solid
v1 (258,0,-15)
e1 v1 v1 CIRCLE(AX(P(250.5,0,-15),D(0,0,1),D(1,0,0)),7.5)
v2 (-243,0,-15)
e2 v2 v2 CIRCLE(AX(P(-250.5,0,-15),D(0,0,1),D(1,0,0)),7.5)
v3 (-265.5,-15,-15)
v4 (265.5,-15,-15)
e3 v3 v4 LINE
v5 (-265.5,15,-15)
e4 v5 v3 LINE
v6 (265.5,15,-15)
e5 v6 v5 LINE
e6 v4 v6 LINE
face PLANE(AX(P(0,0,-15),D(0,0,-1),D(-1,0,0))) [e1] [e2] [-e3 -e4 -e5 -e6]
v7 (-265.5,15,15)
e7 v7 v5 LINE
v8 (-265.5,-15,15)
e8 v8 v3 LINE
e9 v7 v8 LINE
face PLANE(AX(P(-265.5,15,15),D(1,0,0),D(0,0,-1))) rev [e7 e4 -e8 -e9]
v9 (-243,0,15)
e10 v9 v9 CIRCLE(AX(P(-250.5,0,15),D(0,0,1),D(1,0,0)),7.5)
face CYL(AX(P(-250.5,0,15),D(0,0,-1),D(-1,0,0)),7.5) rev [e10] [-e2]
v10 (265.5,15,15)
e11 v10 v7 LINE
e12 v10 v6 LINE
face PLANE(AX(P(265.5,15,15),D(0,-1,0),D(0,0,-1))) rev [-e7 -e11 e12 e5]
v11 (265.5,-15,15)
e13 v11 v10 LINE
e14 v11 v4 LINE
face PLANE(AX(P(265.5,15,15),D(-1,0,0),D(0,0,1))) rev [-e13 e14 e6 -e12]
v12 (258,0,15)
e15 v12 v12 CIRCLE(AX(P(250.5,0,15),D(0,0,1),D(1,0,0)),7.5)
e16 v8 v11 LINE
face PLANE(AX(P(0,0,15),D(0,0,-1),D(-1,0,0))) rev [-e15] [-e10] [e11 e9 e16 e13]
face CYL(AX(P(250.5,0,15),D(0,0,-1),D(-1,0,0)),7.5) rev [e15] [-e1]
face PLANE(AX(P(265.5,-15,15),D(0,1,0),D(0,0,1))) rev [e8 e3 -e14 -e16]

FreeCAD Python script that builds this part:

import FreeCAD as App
import Part
import Sketcher
from FreeCAD import Vector

doc = App.newDocument("Part")
params = doc.addObject("Spreadsheet::Sheet", "Params")
for row, (alias, value) in enumerate([
    ("sketch1_diameter", "15 mm"),
    ("sketch1_width", "531 mm"),
    ("sketch1_height", "30 mm"),
    ("pad1_length", "30 mm"),
], start=1):
    params.set(f"A{row}", alias)
    params.set(f"B{row}", "=" + value)
    params.setAlias(f"B{row}", alias)

body = doc.addObject("PartDesign::Body", "Body")

# Sketch on XY plane
sketch1 = body.newObject("Sketcher::SketchObject", "Sketch")
sketch1.AttachmentSupport = (doc.getObject("XY_Plane"), [""])
sketch1.MapMode = "FlatFace"
sketch1.addGeometry(Part.LineSegment(Vector(-266, 15, 0), Vector(-266, -15, 0)), False)
sketch1.addGeometry(Part.LineSegment(Vector(-266, -15, 0), Vector(266, -15, 0)), False)
sketch1.addGeometry(Part.LineSegment(Vector(266, -15, 0), Vector(266, 15, 0)), False)
sketch1.addGeometry(Part.LineSegment(Vector(266, 15, 0), Vector(-266, 15, 0)), False)
sketch1.addGeometry(Part.Circle(Vector(-250, 0, 0), Vector(0, 0, 1), 8), False)
sketch1.addGeometry(Part.Circle(Vector(250, 0, 0), Vector(0, 0, 1), 8), False)
sketch1.addConstraint(Sketcher.Constraint("Coincident", 0, 2, 1, 1))
sketch1.addConstraint(Sketcher.Constraint("Coincident", 1, 2, 2, 1))
sketch1.addConstraint(Sketcher.Constraint("Coincident", 2, 2, 3, 1))
sketch1.addConstraint(Sketcher.Constraint("Coincident", 3, 2, 0, 1))
sketch1.addConstraint(Sketcher.Constraint("Vertical", 0))
sketch1.addConstraint(Sketcher.Constraint("Horizontal", 1))
sketch1.addConstraint(Sketcher.Constraint("Vertical", 2))
sketch1.addConstraint(Sketcher.Constraint("Horizontal", 3))
sketch1.addConstraint(Sketcher.Constraint("Equal", 4, 5))
sketch1.addConstraint(Sketcher.Constraint("Symmetric", 4, 3, 5, 3, -1, 1))
sketch1.addConstraint(Sketcher.Constraint("Symmetric", 0, 2, 2, 2, -1, 1))
sketch1.addConstraint(Sketcher.Constraint("PointOnObject", 4, 3, -1))
sketch1.addConstraint(Sketcher.Constraint("Diameter", 4, 15.0))
sketch1.addConstraint(Sketcher.Constraint("DistanceX", 1, 1, 1, 2, 531.0))
sketch1.addConstraint(Sketcher.Constraint("DistanceY", 0, 2, 0, 1, 30.0))
sketch1.addConstraint(Sketcher.Constraint("DistanceX", 4, 3, 5, 3, 501.0))
sketch1.setExpression("Constraints[12]", "Params.sketch1_diameter")
sketch1.setExpression("Constraints[13]", "Params.sketch1_width")
sketch1.setExpression("Constraints[14]", "Params.sketch1_height")
pad1 = body.newObject("PartDesign::Pad", "Pad")
pad1.Profile = sketch1
pad1.setExpression("Length", "Params.pad1_length")
pad1.Midplane = True

doc.recompute()
